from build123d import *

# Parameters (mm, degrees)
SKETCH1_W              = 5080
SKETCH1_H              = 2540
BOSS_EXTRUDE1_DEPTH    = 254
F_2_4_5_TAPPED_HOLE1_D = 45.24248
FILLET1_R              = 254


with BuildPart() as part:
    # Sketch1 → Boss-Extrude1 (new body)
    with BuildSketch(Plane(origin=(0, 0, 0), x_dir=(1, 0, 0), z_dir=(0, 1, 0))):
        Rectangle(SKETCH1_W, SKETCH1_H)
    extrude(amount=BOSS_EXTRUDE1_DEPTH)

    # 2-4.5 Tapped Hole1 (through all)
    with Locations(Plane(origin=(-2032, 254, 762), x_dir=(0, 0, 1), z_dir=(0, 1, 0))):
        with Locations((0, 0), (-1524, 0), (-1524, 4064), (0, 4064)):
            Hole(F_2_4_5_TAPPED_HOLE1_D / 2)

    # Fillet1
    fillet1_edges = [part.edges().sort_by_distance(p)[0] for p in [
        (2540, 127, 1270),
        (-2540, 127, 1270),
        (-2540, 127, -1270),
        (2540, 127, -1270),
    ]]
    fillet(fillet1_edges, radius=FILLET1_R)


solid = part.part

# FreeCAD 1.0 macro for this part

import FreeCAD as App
import Part
import Sketcher

V = App.Vector
Q = App.Units.Quantity


def edges_at(feature, points):
    """Names of the edges that pass closest to the given points."""
    edges = feature.Shape.Edges
    near = lambda p: min(range(len(edges)), key=lambda i: edges[i].distToShape(Part.Vertex(*p))[0])
    return sorted({f"Edge{near(p) + 1}" for p in points})


def add_polygon(sketch, points):
    """Adds a closed chain of lines whose ends are joined by coincident constraints."""
    first, n = sketch.GeometryCount, len(points)
    for a, b in zip(points, points[1:] + points[:1]):
        sketch.addGeometry(Part.LineSegment(App.Vector(*a, 0), App.Vector(*b, 0)), False)
    for i in range(n):
        sketch.addConstraint(Sketcher.Constraint("Coincident", first + i, 2, first + (i + 1) % n, 1))

doc = App.newDocument("Part")
params = doc.addObject("Spreadsheet::Sheet", "Params")
for row, (alias, value) in enumerate([
    ("sketch1_width", "200 in"),
    ("sketch1_height", "100 in"),
    ("pad1_length", "10 in"),
    ("hole_diameter", "1.7812 in"),
    ("fillet_radius", "10 in"),
], start=1):
    params.set(f"A{row}", alias)
    params.set(f"B{row}", "=" + value)
    params.setAlias(f"B{row}", alias)

body = doc.addObject("PartDesign::Body", "Body")

# Sketch on XZ plane
sketch1 = doc.addObject("Sketcher::SketchObject", "Sketch")
body.addObject(sketch1)
sketch1.AttachmentSupport = (doc.XZ_Plane, [""])
sketch1.MapMode = "FlatFace"
add_polygon(sketch1, [(-2540, -1270), (-2540, 1270), (2540, 1270), (2540, -1270)])  # lines 0-3
sketch1.addConstraint([
    Sketcher.Constraint("Vertical", 0),
    Sketcher.Constraint("Horizontal", 1),
    Sketcher.Constraint("Vertical", 2),
    Sketcher.Constraint("Horizontal", 3),
    Sketcher.Constraint("Symmetric", 0, 2, 2, 2, -1, 1),
    Sketcher.Constraint("DistanceX", 1, 1, 1, 2, Q("200 in")),
    Sketcher.Constraint("DistanceY", 0, 1, 0, 2, Q("100 in")),
])
sketch1.setExpression("Constraints[9]", "Params.sketch1_width")
sketch1.setExpression("Constraints[10]", "Params.sketch1_height")
pad1 = doc.addObject("PartDesign::Pad", "Pad")
body.addObject(pad1)
pad1.Profile = sketch1
pad1.setExpression("Length", "Params.pad1_length")
pad1.Reversed = True

# Sketch on XZ plane
sketch2 = doc.addObject("Sketcher::SketchObject", "Sketch001")
body.addObject(sketch2)
sketch2.AttachmentSupport = (doc.XZ_Plane, [""])
sketch2.MapMode = "FlatFace"
sketch2.AttachmentOffset = App.Placement(V(0, 0, -10 * 25.4), App.Rotation())
sketch2.addGeometry([
    Part.Circle(V(-2032, 762, 0), V(0, 0, 1), 23),
    Part.Circle(V(-2032, -762, 0), V(0, 0, 1), 23),
    Part.Circle(V(2032, -762, 0), V(0, 0, 1), 23),
    Part.Circle(V(2032, 762, 0), V(0, 0, 1), 23),
], False)
sketch2.addConstraint([
    Sketcher.Constraint("Equal", 0, 1),
    Sketcher.Constraint("Equal", 1, 2),
    Sketcher.Constraint("Equal", 2, 3),
    Sketcher.Constraint("Symmetric", 0, 3, 2, 3, -1, 1),
    Sketcher.Constraint("Symmetric", 1, 3, 3, 3, -1, 1),
    Sketcher.Constraint("Symmetric", 1, 3, 2, 3, -2),
    Sketcher.Constraint("DistanceX", 0, 3, -1, 1, Q("80 in")),
    Sketcher.Constraint("DistanceY", -1, 1, 0, 3, Q("30 in")),
    Sketcher.Constraint("Diameter", 0, Q("1.7812 in")),
])
doc.recompute()
hole = doc.addObject("PartDesign::Hole", "Hole")
body.addObject(hole)
hole.Profile = sketch2
hole.ThreadType = "None"
hole.setExpression("Diameter", "Params.hole_diameter")
hole.DepthType = "ThroughAll"
hole.Reversed = True
doc.recompute()

fillet = doc.addObject("PartDesign::Fillet", "Fillet")
body.addObject(fillet)
fillet.Base = (hole, edges_at(hole, [
    (2540, 127, 1270),
    (-2540, 127, 1270),
    (-2540, 127, -1270),
    (2540, 127, -1270),
]))
fillet.setExpression("Radius", "Params.fillet_radius")

doc.recompute()
